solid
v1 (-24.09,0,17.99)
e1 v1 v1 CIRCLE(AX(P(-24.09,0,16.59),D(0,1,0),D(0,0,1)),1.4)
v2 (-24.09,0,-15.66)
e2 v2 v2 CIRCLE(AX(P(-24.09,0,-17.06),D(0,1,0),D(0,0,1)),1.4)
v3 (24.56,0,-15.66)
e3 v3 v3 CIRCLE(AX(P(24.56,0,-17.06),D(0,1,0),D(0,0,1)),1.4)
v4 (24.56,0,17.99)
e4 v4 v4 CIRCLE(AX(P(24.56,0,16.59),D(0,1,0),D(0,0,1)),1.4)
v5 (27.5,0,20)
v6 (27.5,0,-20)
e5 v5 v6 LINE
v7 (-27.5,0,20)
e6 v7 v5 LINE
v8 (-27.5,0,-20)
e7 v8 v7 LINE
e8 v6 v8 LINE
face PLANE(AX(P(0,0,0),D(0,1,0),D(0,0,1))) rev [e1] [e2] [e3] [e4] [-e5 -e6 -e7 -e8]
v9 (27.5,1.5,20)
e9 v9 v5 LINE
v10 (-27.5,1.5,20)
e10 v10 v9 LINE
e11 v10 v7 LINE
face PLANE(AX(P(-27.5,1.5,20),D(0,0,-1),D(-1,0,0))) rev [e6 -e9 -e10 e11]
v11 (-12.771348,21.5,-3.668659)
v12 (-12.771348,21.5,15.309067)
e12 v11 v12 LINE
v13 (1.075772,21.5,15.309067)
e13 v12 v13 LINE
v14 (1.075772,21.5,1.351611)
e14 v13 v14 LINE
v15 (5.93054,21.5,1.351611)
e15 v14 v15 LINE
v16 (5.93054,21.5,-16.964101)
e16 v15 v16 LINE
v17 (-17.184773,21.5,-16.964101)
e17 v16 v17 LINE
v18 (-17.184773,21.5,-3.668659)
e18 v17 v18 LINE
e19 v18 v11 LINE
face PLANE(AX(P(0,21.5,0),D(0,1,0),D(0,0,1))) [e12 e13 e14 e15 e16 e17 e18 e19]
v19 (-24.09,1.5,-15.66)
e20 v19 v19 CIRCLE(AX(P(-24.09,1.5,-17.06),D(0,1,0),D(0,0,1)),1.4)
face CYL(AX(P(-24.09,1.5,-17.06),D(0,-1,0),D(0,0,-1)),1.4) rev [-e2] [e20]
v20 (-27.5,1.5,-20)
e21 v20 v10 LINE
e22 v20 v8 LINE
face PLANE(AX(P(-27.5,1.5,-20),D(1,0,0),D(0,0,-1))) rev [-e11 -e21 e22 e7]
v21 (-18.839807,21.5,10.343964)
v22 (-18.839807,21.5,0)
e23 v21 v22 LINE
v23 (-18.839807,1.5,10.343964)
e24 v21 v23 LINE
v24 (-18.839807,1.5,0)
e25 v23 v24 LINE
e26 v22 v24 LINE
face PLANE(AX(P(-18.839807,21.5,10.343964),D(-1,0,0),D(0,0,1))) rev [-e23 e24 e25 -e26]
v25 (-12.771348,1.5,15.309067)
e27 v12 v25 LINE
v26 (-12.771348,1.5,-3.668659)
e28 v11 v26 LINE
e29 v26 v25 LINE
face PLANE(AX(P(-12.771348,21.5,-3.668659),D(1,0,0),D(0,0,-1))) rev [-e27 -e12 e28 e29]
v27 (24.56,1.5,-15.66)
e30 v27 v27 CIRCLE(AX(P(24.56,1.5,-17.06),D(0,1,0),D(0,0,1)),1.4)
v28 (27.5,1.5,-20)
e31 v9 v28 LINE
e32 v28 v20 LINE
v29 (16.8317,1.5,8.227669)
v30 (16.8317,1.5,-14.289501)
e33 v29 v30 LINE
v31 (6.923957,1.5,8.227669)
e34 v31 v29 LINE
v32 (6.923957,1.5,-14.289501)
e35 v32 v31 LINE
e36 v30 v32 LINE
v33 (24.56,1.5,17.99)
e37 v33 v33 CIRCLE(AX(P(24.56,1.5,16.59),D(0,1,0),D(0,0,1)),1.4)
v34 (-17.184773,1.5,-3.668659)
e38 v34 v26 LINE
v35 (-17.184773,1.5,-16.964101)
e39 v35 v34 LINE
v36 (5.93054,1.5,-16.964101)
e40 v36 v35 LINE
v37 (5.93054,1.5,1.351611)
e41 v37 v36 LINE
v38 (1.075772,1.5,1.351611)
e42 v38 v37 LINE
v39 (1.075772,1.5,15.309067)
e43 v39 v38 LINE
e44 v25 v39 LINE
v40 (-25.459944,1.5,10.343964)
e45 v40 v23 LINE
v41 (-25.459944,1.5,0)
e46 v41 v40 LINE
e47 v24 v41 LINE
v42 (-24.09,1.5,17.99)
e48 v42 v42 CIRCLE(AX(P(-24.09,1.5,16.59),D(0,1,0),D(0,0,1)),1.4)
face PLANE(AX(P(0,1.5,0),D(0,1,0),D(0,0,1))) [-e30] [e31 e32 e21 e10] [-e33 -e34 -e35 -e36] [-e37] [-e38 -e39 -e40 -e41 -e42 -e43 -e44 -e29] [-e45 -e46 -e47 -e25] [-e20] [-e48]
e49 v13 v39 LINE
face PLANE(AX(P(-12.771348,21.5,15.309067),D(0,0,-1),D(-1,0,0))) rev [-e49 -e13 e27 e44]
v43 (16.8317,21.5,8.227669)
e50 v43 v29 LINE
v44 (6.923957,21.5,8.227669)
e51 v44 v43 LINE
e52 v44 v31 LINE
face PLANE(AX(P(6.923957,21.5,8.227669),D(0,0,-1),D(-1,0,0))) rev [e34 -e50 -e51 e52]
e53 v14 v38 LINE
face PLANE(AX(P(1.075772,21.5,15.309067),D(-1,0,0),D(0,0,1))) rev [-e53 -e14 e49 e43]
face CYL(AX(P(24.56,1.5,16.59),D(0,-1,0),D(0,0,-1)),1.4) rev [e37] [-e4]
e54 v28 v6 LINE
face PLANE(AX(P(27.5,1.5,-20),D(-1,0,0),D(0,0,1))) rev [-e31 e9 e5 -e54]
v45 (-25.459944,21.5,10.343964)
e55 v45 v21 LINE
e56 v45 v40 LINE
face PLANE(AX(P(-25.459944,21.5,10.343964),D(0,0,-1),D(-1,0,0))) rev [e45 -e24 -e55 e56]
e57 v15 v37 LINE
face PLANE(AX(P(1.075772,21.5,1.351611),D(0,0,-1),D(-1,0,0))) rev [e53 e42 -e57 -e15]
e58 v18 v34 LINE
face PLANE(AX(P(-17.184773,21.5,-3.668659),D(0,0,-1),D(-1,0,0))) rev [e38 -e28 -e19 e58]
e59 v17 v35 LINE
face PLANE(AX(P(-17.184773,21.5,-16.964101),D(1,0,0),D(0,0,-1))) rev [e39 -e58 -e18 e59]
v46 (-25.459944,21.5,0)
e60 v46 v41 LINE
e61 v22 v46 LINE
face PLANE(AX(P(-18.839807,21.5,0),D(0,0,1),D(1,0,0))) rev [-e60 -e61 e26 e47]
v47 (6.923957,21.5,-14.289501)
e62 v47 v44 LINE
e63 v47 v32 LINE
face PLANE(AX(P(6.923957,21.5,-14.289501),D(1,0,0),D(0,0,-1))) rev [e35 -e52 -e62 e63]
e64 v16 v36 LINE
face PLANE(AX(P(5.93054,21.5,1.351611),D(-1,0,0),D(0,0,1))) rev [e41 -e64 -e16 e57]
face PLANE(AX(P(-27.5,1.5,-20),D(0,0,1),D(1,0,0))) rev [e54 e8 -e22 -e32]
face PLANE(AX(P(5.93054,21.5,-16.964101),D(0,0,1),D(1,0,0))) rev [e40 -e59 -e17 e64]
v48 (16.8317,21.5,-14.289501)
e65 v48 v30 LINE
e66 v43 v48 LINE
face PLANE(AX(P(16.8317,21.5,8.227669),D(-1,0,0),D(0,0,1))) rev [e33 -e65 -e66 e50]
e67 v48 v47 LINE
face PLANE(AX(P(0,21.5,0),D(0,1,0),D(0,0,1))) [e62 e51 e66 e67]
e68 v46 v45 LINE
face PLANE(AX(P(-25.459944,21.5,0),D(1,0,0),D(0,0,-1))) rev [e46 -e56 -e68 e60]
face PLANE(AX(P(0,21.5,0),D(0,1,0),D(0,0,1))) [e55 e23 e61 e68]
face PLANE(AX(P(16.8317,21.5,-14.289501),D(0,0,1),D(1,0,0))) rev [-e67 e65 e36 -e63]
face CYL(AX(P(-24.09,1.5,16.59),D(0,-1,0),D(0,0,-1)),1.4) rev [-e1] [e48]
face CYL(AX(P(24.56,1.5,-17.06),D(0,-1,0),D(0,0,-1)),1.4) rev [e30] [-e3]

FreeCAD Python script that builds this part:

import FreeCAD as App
import Part
import Sketcher
Q = App.Units.Quantity

doc = App.newDocument("Part")
body = doc.addObject("PartDesign::Body", "Body")

# Sketch on XZ plane
sketch1 = body.newObject("Sketcher::SketchObject", "Sketch")
sketch1.AttachmentSupport = (doc.getObject("XZ_Plane"), [""])
sketch1.MapMode = "FlatFace"
sketch1.addGeometry([
    Part.LineSegment(App.Vector(-27.5, -20, 0), App.Vector(-27.5, 20, 0)),  # 0
    Part.LineSegment(App.Vector(-27.5, 20, 0), App.Vector(27.5, 20, 0)),  # 1
    Part.LineSegment(App.Vector(27.5, 20, 0), App.Vector(27.5, -20, 0)),  # 2
    Part.LineSegment(App.Vector(27.5, -20, 0), App.Vector(-27.5, -20, 0)),  # 3
    Part.Circle(App.Vector(-24.1, 16.6, 0), App.Vector(0, 0, 1), 1.4),  # 4
    Part.Circle(App.Vector(24.6, 16.6, 0), App.Vector(0, 0, 1), 1.4),  # 5
    Part.Circle(App.Vector(-24.1, -17.1, 0), App.Vector(0, 0, 1), 1.4),  # 6
    Part.Circle(App.Vector(24.6, -17.1, 0), App.Vector(0, 0, 1), 1.4),  # 7
], False)
sketch1.addConstraint([
    Sketcher.Constraint("Coincident", 0, 2, 1, 1),
    Sketcher.Constraint("Coincident", 1, 2, 2, 1),
    Sketcher.Constraint("Coincident", 2, 2, 3, 1),
    Sketcher.Constraint("Coincident", 3, 2, 0, 1),
    Sketcher.Constraint("Vertical", 0),
    Sketcher.Constraint("Horizontal", 1),
    Sketcher.Constraint("Vertical", 2),
    Sketcher.Constraint("Horizontal", 3),
    Sketcher.Constraint("Equal", 4, 5),
    Sketcher.Constraint("Equal", 5, 6),
    Sketcher.Constraint("Equal", 6, 7),
    Sketcher.Constraint("Symmetric", 0, 2, 2, 2, -1, 1),
    Sketcher.Constraint("Horizontal", 4, 3, 5, 3),
    Sketcher.Constraint("Horizontal", 6, 3, 7, 3),
    Sketcher.Constraint("Vertical", 4, 3, 6, 3),
    Sketcher.Constraint("Vertical", 5, 3, 7, 3),
    Sketcher.Constraint("Diameter", 4, Q("2.8 mm")),
    Sketcher.Constraint("DistanceX", 1, 1, 1, 2, Q("55 mm")),
    Sketcher.Constraint("DistanceY", 0, 1, 0, 2, Q("40 mm")),
    Sketcher.Constraint("DistanceX", 4, 3, -1, 1, Q("24.09 mm")),
    Sketcher.Constraint("DistanceY", -1, 1, 4, 3, Q("16.59 mm")),
    Sketcher.Constraint("DistanceX", -1, 1, 5, 3, Q("24.56 mm")),
    Sketcher.Constraint("DistanceY", 6, 3, -1, 1, Q("17.06 mm")),
])
pad1 = body.newObject("PartDesign::Pad", "Pad")
pad1.Profile = sketch1
pad1.Length = 1.5
pad1.Reversed = True

# Sketch on XZ plane
sketch2 = body.newObject("Sketcher::SketchObject", "Sketch001")
sketch2.AttachmentSupport = (doc.getObject("XZ_Plane"), [""])
sketch2.MapMode = "FlatFace"
sketch2.AttachmentOffset = App.Placement(App.Vector(0, 0, -1.5), App.Rotation())
sketch2.addGeometry([
    Part.LineSegment(App.Vector(6.9, -14.3, 0), App.Vector(6.9, 8.2, 0)),  # 0
    Part.LineSegment(App.Vector(6.9, 8.2, 0), App.Vector(16.8, 8.2, 0)),  # 1
    Part.LineSegment(App.Vector(16.8, 8.2, 0), App.Vector(16.8, -14.3, 0)),  # 2
    Part.LineSegment(App.Vector(16.8, -14.3, 0), App.Vector(6.9, -14.3, 0)),  # 3
    Part.LineSegment(App.Vector(5.9, -17, 0), App.Vector(-17.2, -17, 0)),  # 4
    Part.LineSegment(App.Vector(-17.2, -17, 0), App.Vector(-17.2, -3.7, 0)),  # 5
    Part.LineSegment(App.Vector(-17.2, -3.7, 0), App.Vector(-12.8, -3.7, 0)),  # 6
    Part.LineSegment(App.Vector(-12.8, -3.7, 0), App.Vector(-12.8, 15.3, 0)),  # 7
    Part.LineSegment(App.Vector(-12.8, 15.3, 0), App.Vector(1.1, 15.3, 0)),  # 8
    Part.LineSegment(App.Vector(1.1, 15.3, 0), App.Vector(1.1, 1.4, 0)),  # 9
    Part.LineSegment(App.Vector(1.1, 1.4, 0), App.Vector(5.9, 1.4, 0)),  # 10
    Part.LineSegment(App.Vector(5.9, 1.4, 0), App.Vector(5.9, -17, 0)),  # 11
    Part.LineSegment(App.Vector(-25.5, 0, 0), App.Vector(-25.5, 10.3, 0)),  # 12
    Part.LineSegment(App.Vector(-25.5, 10.3, 0), App.Vector(-18.8, 10.3, 0)),  # 13
    Part.LineSegment(App.Vector(-18.8, 10.3, 0), App.Vector(-18.8, 0, 0)),  # 14
    Part.LineSegment(App.Vector(-18.8, 0, 0), App.Vector(-25.5, 0, 0)),  # 15
], False)
sketch2.addConstraint([
    Sketcher.Constraint("Coincident", 0, 2, 1, 1),
    Sketcher.Constraint("Coincident", 1, 2, 2, 1),
    Sketcher.Constraint("Coincident", 2, 2, 3, 1),
    Sketcher.Constraint("Coincident", 3, 2, 0, 1),
    Sketcher.Constraint("Coincident", 4, 2, 5, 1),
    Sketcher.Constraint("Coincident", 5, 2, 6, 1),
    Sketcher.Constraint("Coincident", 6, 2, 7, 1),
    Sketcher.Constraint("Coincident", 7, 2, 8, 1),
    Sketcher.Constraint("Coincident", 8, 2, 9, 1),
    Sketcher.Constraint("Coincident", 9, 2, 10, 1),
    Sketcher.Constraint("Coincident", 10, 2, 11, 1),
    Sketcher.Constraint("Coincident", 11, 2, 4, 1),
    Sketcher.Constraint("Coincident", 12, 2, 13, 1),
    Sketcher.Constraint("Coincident", 13, 2, 14, 1),
    Sketcher.Constraint("Coincident", 14, 2, 15, 1),
    Sketcher.Constraint("Coincident", 15, 2, 12, 1),
    Sketcher.Constraint("Vertical", 0),
    Sketcher.Constraint("Horizontal", 1),
    Sketcher.Constraint("Vertical", 2),
    Sketcher.Constraint("Horizontal", 3),
    Sketcher.Constraint("Horizontal", 4),
    Sketcher.Constraint("Vertical", 5),
    Sketcher.Constraint("Horizontal", 6),
    Sketcher.Constraint("Vertical", 7),
    Sketcher.Constraint("Horizontal", 8),
    Sketcher.Constraint("Vertical", 9),
    Sketcher.Constraint("Horizontal", 10),
    Sketcher.Constraint("Vertical", 11),
    Sketcher.Constraint("Vertical", 12),
    Sketcher.Constraint("Horizontal", 13),
    Sketcher.Constraint("Vertical", 14),
    Sketcher.Constraint("Horizontal", 15),
    Sketcher.Constraint("PointOnObject", 14, 2, -1),
    Sketcher.Constraint("DistanceX", 8, 1, 8, 2, Q("13.84712 mm")),
    Sketcher.Constraint("DistanceY", 0, 1, 0, 2, Q("22.517169 mm")),
    Sketcher.Constraint("DistanceX", -1, 1, 1, 2, Q("16.8317 mm")),
    Sketcher.Constraint("DistanceY", 2, 2, -1, 1, Q("14.289501 mm")),
    Sketcher.Constraint("DistanceY", 4, 2, -1, 1, Q("16.964101 mm")),
    Sketcher.Constraint("DistanceY", 0, 2, 7, 2, Q("7.081398 mm")),
    Sketcher.Constraint("DistanceX", 1, 1, 1, 2, Q("9.907742 mm")),
    Sketcher.Constraint("DistanceX", 4, 2, 4, 1, Q("23.115312 mm")),
    Sketcher.Constraint("DistanceX", 6, 1, 6, 2, Q("4.413425 mm")),
    Sketcher.Constraint("DistanceX", 13, 1, 13, 2, Q("6.620137 mm")),
    Sketcher.Constraint("DistanceY", 5, 1, 5, 2, Q("13.295442 mm")),
    Sketcher.Constraint("DistanceY", 9, 2, 9, 1, Q("13.957456 mm")),
    Sketcher.Constraint("DistanceY", 12, 1, 12, 2, Q("10.343964 mm")),
    Sketcher.Constraint("DistanceX", -1, 1, 10, 2, Q("5.93054 mm")),
    Sketcher.Constraint("DistanceX", 12, 2, 5, 2, Q("8.275171 mm")),
])
pad2 = body.newObject("PartDesign::Pad", "Pad001")
pad2.Profile = sketch2
pad2.Length = 20
pad2.Reversed = True

doc.recompute()
